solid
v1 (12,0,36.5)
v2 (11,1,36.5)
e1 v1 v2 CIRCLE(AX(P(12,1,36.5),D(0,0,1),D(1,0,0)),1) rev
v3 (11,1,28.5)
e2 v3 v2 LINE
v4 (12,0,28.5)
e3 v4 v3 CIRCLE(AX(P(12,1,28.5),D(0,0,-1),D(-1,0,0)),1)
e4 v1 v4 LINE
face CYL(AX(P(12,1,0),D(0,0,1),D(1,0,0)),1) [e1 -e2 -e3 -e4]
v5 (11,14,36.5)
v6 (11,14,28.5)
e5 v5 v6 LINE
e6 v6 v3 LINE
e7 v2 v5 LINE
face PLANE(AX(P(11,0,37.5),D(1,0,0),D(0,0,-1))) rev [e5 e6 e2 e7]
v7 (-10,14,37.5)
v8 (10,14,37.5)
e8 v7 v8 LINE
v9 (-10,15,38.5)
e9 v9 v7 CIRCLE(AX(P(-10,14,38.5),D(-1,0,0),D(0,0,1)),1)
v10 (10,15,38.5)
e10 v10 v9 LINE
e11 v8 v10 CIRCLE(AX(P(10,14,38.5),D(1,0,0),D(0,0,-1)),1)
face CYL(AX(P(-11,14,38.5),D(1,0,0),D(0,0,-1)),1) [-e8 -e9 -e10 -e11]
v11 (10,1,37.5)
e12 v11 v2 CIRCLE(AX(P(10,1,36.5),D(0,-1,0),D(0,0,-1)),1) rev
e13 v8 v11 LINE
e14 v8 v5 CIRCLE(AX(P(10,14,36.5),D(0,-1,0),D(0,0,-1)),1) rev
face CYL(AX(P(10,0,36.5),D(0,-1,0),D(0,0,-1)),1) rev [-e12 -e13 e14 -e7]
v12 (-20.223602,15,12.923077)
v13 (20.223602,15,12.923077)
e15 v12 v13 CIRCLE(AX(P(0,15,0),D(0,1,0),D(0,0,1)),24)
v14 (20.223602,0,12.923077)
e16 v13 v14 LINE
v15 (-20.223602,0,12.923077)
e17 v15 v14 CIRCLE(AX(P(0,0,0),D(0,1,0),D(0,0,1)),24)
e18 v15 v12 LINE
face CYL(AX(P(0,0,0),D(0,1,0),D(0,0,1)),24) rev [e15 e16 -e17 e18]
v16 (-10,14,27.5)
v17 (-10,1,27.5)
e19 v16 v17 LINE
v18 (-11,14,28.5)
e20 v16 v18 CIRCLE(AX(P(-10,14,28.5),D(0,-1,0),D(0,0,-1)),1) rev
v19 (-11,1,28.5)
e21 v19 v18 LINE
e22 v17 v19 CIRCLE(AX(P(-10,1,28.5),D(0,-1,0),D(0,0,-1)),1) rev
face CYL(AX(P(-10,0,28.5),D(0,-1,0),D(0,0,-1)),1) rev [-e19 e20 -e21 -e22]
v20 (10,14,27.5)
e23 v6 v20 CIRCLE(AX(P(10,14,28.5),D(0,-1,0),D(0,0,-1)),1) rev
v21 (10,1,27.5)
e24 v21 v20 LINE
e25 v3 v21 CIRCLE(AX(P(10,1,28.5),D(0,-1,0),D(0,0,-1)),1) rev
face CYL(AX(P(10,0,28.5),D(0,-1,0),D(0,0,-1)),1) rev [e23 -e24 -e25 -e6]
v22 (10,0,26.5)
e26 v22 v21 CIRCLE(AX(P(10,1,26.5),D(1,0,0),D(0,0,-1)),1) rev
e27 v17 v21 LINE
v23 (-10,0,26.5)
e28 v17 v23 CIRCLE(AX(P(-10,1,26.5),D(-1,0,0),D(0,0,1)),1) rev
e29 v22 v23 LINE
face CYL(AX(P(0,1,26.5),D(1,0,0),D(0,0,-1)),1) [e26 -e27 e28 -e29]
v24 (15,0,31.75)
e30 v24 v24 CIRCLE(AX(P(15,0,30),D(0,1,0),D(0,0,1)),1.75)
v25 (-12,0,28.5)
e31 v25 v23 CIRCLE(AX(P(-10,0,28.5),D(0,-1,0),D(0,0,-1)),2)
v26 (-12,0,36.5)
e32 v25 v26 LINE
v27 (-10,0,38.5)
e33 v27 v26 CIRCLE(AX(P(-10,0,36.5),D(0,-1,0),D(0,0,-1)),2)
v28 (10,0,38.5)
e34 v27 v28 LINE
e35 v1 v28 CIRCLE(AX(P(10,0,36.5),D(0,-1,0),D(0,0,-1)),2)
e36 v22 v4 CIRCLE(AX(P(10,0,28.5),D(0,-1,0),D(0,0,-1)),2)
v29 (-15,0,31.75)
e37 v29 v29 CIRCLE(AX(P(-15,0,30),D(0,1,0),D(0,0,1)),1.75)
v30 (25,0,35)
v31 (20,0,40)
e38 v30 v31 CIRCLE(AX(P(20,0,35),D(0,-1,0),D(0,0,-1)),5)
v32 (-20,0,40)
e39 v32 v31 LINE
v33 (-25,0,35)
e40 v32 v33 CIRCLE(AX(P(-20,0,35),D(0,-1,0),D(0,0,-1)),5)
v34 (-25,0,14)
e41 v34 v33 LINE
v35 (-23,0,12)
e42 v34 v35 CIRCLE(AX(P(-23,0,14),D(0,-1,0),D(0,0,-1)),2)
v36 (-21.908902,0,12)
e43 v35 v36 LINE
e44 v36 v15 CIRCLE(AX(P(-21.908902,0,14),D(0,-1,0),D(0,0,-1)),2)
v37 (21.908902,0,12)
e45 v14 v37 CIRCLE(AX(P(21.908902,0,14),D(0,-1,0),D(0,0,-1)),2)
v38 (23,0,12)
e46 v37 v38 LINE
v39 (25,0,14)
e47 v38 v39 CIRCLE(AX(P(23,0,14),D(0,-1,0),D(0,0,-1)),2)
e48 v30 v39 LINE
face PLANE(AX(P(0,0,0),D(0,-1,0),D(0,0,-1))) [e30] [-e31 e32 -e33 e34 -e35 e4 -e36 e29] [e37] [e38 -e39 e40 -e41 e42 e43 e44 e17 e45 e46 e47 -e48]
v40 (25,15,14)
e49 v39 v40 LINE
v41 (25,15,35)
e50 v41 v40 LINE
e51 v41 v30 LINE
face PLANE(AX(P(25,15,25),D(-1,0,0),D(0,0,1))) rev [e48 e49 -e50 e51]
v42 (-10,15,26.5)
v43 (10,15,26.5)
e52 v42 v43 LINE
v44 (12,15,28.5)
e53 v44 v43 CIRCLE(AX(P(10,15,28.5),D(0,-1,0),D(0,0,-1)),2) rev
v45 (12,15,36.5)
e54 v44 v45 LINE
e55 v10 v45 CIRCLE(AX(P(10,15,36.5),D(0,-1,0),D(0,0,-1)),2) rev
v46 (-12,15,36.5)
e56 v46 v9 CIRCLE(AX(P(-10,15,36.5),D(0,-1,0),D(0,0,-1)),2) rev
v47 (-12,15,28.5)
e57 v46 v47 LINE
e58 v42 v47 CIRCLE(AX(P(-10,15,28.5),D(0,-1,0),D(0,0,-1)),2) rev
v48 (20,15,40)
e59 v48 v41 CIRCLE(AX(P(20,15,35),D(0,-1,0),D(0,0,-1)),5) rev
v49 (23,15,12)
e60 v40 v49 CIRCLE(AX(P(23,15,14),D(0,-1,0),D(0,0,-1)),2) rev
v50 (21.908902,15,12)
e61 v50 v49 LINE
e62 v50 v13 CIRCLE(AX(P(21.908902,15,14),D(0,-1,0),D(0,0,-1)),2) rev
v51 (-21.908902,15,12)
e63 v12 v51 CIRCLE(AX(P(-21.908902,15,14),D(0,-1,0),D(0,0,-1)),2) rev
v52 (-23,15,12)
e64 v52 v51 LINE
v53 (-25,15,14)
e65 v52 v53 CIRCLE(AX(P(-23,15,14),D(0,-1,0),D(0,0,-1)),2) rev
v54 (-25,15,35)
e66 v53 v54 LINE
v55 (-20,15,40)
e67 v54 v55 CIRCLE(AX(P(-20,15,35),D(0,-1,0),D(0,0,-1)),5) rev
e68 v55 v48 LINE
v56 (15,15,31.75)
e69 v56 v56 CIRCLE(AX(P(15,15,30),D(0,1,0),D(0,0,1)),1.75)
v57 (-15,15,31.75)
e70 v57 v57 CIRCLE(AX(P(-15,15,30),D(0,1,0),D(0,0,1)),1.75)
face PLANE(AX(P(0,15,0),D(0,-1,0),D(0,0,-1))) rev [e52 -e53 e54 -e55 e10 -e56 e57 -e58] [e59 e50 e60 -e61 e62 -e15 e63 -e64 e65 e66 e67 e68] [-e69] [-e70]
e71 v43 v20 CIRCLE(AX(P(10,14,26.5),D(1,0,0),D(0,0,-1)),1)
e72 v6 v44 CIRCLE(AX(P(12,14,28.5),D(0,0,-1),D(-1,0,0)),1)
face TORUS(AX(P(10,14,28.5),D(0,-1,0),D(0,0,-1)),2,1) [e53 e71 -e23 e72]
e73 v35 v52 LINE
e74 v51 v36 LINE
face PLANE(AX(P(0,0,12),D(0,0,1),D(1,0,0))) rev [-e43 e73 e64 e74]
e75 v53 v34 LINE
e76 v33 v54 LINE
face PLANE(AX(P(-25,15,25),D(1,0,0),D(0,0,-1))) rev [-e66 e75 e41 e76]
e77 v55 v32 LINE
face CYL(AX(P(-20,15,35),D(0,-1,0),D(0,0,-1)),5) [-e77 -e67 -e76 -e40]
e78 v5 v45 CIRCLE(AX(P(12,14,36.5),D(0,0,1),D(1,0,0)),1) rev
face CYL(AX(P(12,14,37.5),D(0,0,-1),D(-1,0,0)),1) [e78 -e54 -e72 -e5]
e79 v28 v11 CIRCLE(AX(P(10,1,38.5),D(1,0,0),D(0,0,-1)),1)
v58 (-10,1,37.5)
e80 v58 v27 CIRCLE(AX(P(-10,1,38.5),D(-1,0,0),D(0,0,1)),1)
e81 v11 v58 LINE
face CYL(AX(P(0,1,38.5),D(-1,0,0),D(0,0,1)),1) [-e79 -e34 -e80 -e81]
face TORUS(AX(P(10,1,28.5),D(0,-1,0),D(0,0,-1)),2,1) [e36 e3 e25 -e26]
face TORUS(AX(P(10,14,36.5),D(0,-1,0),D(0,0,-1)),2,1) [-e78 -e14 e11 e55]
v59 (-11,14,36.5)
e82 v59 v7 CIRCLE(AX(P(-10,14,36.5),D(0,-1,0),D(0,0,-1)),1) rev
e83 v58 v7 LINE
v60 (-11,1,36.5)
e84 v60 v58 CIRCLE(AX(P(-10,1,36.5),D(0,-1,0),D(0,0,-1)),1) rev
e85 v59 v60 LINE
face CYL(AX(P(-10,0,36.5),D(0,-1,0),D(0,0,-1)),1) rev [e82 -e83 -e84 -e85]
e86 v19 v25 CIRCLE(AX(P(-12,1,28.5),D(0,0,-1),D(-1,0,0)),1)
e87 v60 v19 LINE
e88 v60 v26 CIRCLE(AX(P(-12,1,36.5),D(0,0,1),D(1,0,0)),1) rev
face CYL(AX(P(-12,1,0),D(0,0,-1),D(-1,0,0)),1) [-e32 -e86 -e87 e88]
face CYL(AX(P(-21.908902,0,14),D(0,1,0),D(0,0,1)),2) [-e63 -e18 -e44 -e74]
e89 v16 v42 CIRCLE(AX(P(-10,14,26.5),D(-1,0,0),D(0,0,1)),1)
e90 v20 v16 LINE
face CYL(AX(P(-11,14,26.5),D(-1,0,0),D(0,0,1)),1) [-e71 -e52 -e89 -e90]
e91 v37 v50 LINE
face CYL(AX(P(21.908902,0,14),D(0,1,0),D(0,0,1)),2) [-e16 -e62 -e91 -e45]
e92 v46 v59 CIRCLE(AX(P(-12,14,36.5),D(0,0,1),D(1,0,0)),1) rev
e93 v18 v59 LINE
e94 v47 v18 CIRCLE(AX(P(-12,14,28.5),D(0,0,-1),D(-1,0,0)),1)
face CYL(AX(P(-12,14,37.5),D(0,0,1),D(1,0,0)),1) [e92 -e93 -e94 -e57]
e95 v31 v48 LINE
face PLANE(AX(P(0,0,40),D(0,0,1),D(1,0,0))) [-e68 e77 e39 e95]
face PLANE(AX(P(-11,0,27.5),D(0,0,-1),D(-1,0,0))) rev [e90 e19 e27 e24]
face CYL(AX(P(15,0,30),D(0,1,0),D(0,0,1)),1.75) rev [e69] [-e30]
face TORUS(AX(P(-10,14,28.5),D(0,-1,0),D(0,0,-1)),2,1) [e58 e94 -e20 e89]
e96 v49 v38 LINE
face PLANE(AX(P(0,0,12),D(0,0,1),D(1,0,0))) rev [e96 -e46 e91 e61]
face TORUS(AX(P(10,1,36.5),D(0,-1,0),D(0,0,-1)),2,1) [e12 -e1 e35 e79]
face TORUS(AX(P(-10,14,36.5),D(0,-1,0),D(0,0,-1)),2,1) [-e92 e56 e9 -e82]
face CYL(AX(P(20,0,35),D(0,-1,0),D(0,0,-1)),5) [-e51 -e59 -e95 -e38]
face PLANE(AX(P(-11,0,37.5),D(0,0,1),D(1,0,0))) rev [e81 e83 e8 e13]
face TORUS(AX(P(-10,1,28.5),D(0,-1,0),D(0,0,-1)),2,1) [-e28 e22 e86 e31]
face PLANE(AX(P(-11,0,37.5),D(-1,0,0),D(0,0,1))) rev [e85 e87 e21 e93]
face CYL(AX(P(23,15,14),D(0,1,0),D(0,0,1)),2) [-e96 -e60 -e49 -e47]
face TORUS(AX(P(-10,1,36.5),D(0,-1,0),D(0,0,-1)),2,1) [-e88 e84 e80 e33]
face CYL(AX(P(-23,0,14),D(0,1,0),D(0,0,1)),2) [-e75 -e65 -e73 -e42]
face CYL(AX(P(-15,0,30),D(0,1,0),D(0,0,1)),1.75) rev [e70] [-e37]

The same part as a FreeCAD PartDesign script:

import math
import FreeCAD as App
import Part
import Sketcher

V = App.Vector
Q = App.Units.Quantity


def edges_at(feature, points):
    """Names of the edges that pass closest to the given points."""
    edges = feature.Shape.Edges
    near = lambda p: min(range(len(edges)), key=lambda i: edges[i].distToShape(Part.Vertex(*p))[0])
    return sorted({f"Edge{near(p) + 1}" for p in points})


def add_polygon(sketch, points):
    """Adds a closed chain of lines whose ends are joined by coincident constraints."""
    first, n = sketch.GeometryCount, len(points)
    for a, b in zip(points, points[1:] + points[:1]):
        sketch.addGeometry(Part.LineSegment(App.Vector(*a, 0), App.Vector(*b, 0)), False)
    for i in range(n):
        sketch.addConstraint(Sketcher.Constraint("Coincident", first + i, 2, first + (i + 1) % n, 1))

doc = App.newDocument("Part")
body = doc.addObject("PartDesign::Body", "Body")

# Sketch on XZ plane
sketch1 = doc.addObject("Sketcher::SketchObject", "Sketch")
body.addObject(sketch1)
sketch1.AttachmentSupport = (doc.XZ_Plane, [""])
sketch1.MapMode = "FlatFace"
add_polygon(sketch1, [(-25, -25), (-25, 25), (25, 25), (25, -25)])  # lines 0-3
sketch1.addGeometry(Part.Circle(V(0, 0, 0), V(0, 0, 1), 21), False)  # 4
sketch1.addConstraint([
    Sketcher.Constraint("Vertical", 0),
    Sketcher.Constraint("Horizontal", 1),
    Sketcher.Constraint("Vertical", 2),
    Sketcher.Constraint("Horizontal", 3),
    Sketcher.Constraint("Coincident", 4, 3, -1, 1),
    Sketcher.Constraint("Symmetric", 0, 2, 2, 2, -1, 1),
    Sketcher.Constraint("Equal", 3, 0),
    Sketcher.Constraint("Diameter", 4, Q("42.1 mm")),
    Sketcher.Constraint("DistanceX", 1, 1, 1, 2, Q("50 mm")),
])
pad1 = doc.addObject("PartDesign::Pad", "Pad")
body.addObject(pad1)
pad1.Profile = sketch1
pad1.Length = 15
pad1.Reversed = True

# Sketch on XZ plane
sketch2 = doc.addObject("Sketcher::SketchObject", "Sketch001")
body.addObject(sketch2)
sketch2.AttachmentSupport = (doc.XZ_Plane, [""])
sketch2.MapMode = "FlatFace"
sketch2.AttachmentOffset = App.Placement(V(0, 0, -15), App.Rotation())
add_polygon(sketch2, [(-25, 25), (-25, 55), (25, 55), (25, 25)])  # lines 0-3
sketch2.addGeometry(Part.Circle(V(-15, 47.5, 0), V(0, 0, 1), 1.6), False)  # 4
sketch2.addGeometry(Part.Circle(V(15, 47.5, 0), V(0, 0, 1), 1.6), False)  # 5
sketch2.addConstraint([
    Sketcher.Constraint("Vertical", 0),
    Sketcher.Constraint("Horizontal", 1),
    Sketcher.Constraint("Vertical", 2),
    Sketcher.Constraint("Horizontal", 3),
    Sketcher.Constraint("Equal", 4, 5),
    Sketcher.Constraint("Symmetric", 4, 3, 5, 3, -2),
    Sketcher.Constraint("Diameter", 4, Q("3.2 mm")),
    Sketcher.Constraint("DistanceX", 1, 1, 1, 2, Q("50 mm")),
    Sketcher.Constraint("DistanceY", 0, 1, 0, 2, Q("30 mm")),
    Sketcher.Constraint("DistanceX", 4, 3, -1, 1, Q("15 mm")),
    Sketcher.Constraint("DistanceX", 0, 2, -1, 1, Q("25 mm")),
    Sketcher.Constraint("DistanceY", -1, 1, 0, 2, Q("55 mm")),
    Sketcher.Constraint("DistanceY", -1, 1, 4, 3, Q("47.5 mm")),
])
pad2 = doc.addObject("PartDesign::Pad", "Pad001")
body.addObject(pad2)
pad2.Profile = sketch2
pad2.Length = 15
doc.recompute()

fillet = doc.addObject("PartDesign::Fillet", "Fillet")
body.addObject(fillet)
fillet.Base = (pad2, edges_at(pad2, [
    (25, 7.5, 55),
    (-25, 7.5, 55),
    (-25, 7.5, -25),
    (25, 7.5, -25),
]))
fillet.Radius = 3

# Sketch on XZ plane
sketch3 = doc.addObject("Sketcher::SketchObject", "Sketch002")
body.addObject(sketch3)
sketch3.AttachmentSupport = (doc.XZ_Plane, [""])
sketch3.MapMode = "FlatFace"
sketch3.AttachmentOffset = App.Placement(V(0, 0, -15), App.Rotation())
sketch3.addGeometry([
    Part.Circle(V(-15, 30, 0), V(0, 0, 1), 1.8),
    Part.Circle(V(15, 30, 0), V(0, 0, 1), 1.8),
], False)
sketch3.addConstraint([
    Sketcher.Constraint("Equal", 0, 1),
    Sketcher.Constraint("Symmetric", 0, 3, 1, 3, -2),
    Sketcher.Constraint("Diameter", 0, Q("3.5 mm")),
    Sketcher.Constraint("DistanceX", 0, 3, -1, 1, Q("15 mm")),
    Sketcher.Constraint("DistanceY", -1, 1, 0, 3, Q("30 mm")),
])
pocket1 = doc.addObject("PartDesign::Pocket", "Pocket")
body.addObject(pocket1)
pocket1.Profile = sketch3
pocket1.Type = "ThroughAll"
pocket1.Reversed = True

# Sketch on XZ plane
sketch4 = doc.addObject("Sketcher::SketchObject", "Sketch003")
body.addObject(sketch4)
sketch4.AttachmentSupport = (doc.XZ_Plane, [""])
sketch4.MapMode = "FlatFace"
sketch4.AttachmentOffset = App.Placement(V(0, 0, -15), App.Rotation())
sketch4.addGeometry([
    Part.LineSegment(V(25, 40, 0), V(-25, 40, 0)),  # 0
    Part.LineSegment(V(-25, 40, 0), V(-25, 52, 0)),  # 1
    Part.ArcOfCircle(Part.Circle(V(-22, 52, 0), V(0, 0, 1), 3), math.radians(90), math.radians(180)),  # 2
    Part.LineSegment(V(-22, 55, 0), V(22, 55, 0)),  # 3
    Part.ArcOfCircle(Part.Circle(V(22, 52, 0), V(0, 0, 1), 3), math.radians(0), math.radians(90)),  # 4
    Part.LineSegment(V(25, 52, 0), V(25, 40, 0)),  # 5
    Part.Circle(V(-15, 47.5, 0), V(0, 0, 1), 1.6),  # 6
    Part.Circle(V(15, 47.5, 0), V(0, 0, 1), 1.6),  # 7
    Part.LineSegment(V(-25, -22, 0), V(-25, 12, 0)),  # 8
    Part.LineSegment(V(-25, 12, 0), V(-20.8, 12, 0)),  # 9
    Part.ArcOfCircle(Part.Circle(V(0, 0, 0), V(0, 0, 1), 24), math.radians(30), math.radians(150)),  # 10
    Part.LineSegment(V(20.8, 12, 0), V(25, 12, 0)),  # 11
    Part.LineSegment(V(25, 12, 0), V(25, -22, 0)),  # 12
    Part.ArcOfCircle(Part.Circle(V(22, -22, 0), V(0, 0, 1), 3), math.radians(-90), math.radians(0)),  # 13
    Part.LineSegment(V(22, -25, 0), V(-22, -25, 0)),  # 14
    Part.ArcOfCircle(Part.Circle(V(-22, -22, 0), V(0, 0, 1), 3), math.radians(180), math.radians(270)),  # 15
    Part.ArcOfCircle(Part.Circle(V(0, 0, 0), V(0, 0, 1), 21.1), math.radians(145), math.radians(360)),  # 16
    Part.ArcOfCircle(Part.Circle(V(0, 0, 0), V(0, 0, 1), 21.1), math.radians(0), math.radians(35)),  # 17
    Part.ArcOfCircle(Part.Circle(V(0, 0, 0), V(0, 0, 1), 21.1), math.radians(35), math.radians(145)),  # 18
], False)
sketch4.addConstraint([
    Sketcher.Constraint("Coincident", 0, 2, 1, 1),
    Sketcher.Constraint("Tangent", 1, 2, 2, 2),
    Sketcher.Constraint("Tangent", 2, 1, 3, 1),
    Sketcher.Constraint("Tangent", 3, 2, 4, 2),
    Sketcher.Constraint("Tangent", 4, 1, 5, 1),
    Sketcher.Constraint("Coincident", 5, 2, 0, 1),
    Sketcher.Constraint("Coincident", 8, 2, 9, 1),
    Sketcher.Constraint("Coincident", 9, 2, 10, 2),
    Sketcher.Constraint("Coincident", 10, 1, 11, 1),
    Sketcher.Constraint("Coincident", 11, 2, 12, 1),
    Sketcher.Constraint("Tangent", 12, 2, 13, 2),
    Sketcher.Constraint("Tangent", 13, 1, 14, 1),
    Sketcher.Constraint("Tangent", 14, 2, 15, 2),
    Sketcher.Constraint("Tangent", 15, 1, 8, 1),
    Sketcher.Constraint("Tangent", 16, 2, 17, 1),
    Sketcher.Constraint("Tangent", 17, 2, 18, 1),
    Sketcher.Constraint("Tangent", 18, 2, 16, 1),
    Sketcher.Constraint("Horizontal", 0),
    Sketcher.Constraint("Vertical", 1),
    Sketcher.Constraint("Horizontal", 3),
    Sketcher.Constraint("Vertical", 5),
    Sketcher.Constraint("Vertical", 8),
    Sketcher.Constraint("Horizontal", 9),
    Sketcher.Constraint("Horizontal", 11),
    Sketcher.Constraint("Vertical", 12),
    Sketcher.Constraint("Horizontal", 14),
    Sketcher.Constraint("Coincident", 10, 3, -1, 1),
    Sketcher.Constraint("Coincident", 16, 3, -1, 1),
    Sketcher.Constraint("Equal", 2, 4),
    Sketcher.Constraint("Equal", 6, 7),
    Sketcher.Constraint("Equal", 4, 13),
    Sketcher.Constraint("Equal", 13, 15),
    Sketcher.Constraint("Symmetric", 6, 3, 7, 3, -2),
    Sketcher.Constraint("Symmetric", 8, 2, 11, 2, -2),
    Sketcher.Constraint("PointOnObject", 16, 2, -1),
    Sketcher.Constraint("Horizontal", 11, 2, 17, 2),
    Sketcher.Constraint("Horizontal", 17, 2, 18, 2),
    Sketcher.Constraint("Vertical", 4, 3, 13, 3),
    Sketcher.Constraint("Vertical", 2, 3, 15, 3),
    Sketcher.Constraint("Radius", 2, Q("3 mm")),
    Sketcher.Constraint("Radius", 10, Q("24 mm")),
    Sketcher.Constraint("Diameter", 6, Q("3.2 mm")),
    Sketcher.Constraint("DistanceX", 0, 2, 0, 1, Q("50 mm")),
    Sketcher.Constraint("DistanceY", 1, 1, 1, 2, Q("12 mm")),
    Sketcher.Constraint("DistanceY", 8, 1, 8, 2, Q("34 mm")),
    Sketcher.Constraint("Radius", 16, Q("21.05 mm")),
    Sketcher.Constraint("DistanceY", -1, 1, 2, 3, Q("52 mm")),
    Sketcher.Constraint("DistanceX", 6, 3, -1, 1, Q("15 mm")),
    Sketcher.Constraint("DistanceY", 13, 3, -1, 1, Q("22 mm")),
    Sketcher.Constraint("DistanceY", -1, 1, 6, 3, Q("47.5 mm")),
])
pocket2 = doc.addObject("PartDesign::Pocket", "Pocket001")
body.addObject(pocket2)
pocket2.Profile = sketch4
pocket2.Length = 63.249498
pocket2.Reversed = True
doc.recompute()

fillet2 = doc.addObject("PartDesign::Fillet", "Fillet001")
body.addObject(fillet2)
fillet2.Base = (pocket2, edges_at(pocket2, [
    (20.785, 7.5, 12),
    (-20.785, 7.5, 12),
    (-25, 7.5, 12),
    (25, 7.5, 12),
]))
fillet2.Radius = 2
doc.recompute()

fillet3 = doc.addObject("PartDesign::Fillet", "Fillet002")
body.addObject(fillet3)
fillet3.Base = (fillet2, edges_at(fillet2, [(-25, 7.5, 40), (25, 7.5, 40)]))
fillet3.Radius = 5

# Sketch on XZ plane
sketch5 = doc.addObject("Sketcher::SketchObject", "Sketch004")
body.addObject(sketch5)
sketch5.AttachmentSupport = (doc.XZ_Plane, [""])
sketch5.MapMode = "FlatFace"
sketch5.AttachmentOffset = App.Placement(V(0, 0, -15), App.Rotation())
add_polygon(sketch5, [(-11, 28), (-11, 38), (11, 38), (11, 28)])  # lines 0-3
sketch5.addConstraint([
    Sketcher.Constraint("Vertical", 0),
    Sketcher.Constraint("Horizontal", 1),
    Sketcher.Constraint("Vertical", 2),
    Sketcher.Constraint("Horizontal", 3),
    Sketcher.Constraint("DistanceX", 1, 1, 1, 2, Q("22 mm")),
    Sketcher.Constraint("DistanceY", 0, 1, 0, 2, Q("10 mm")),
    Sketcher.Constraint("DistanceX", 0, 2, -1, 1, Q("11 mm")),
    Sketcher.Constraint("DistanceY", -1, 1, 0, 2, Q("37.5 mm")),
])
pocket3 = doc.addObject("PartDesign::Pocket", "Pocket002")
body.addObject(pocket3)
pocket3.Profile = sketch5
pocket3.Type = "ThroughAll"
pocket3.Reversed = True
doc.recompute()

fillet4 = doc.addObject("PartDesign::Fillet", "Fillet003")
body.addObject(fillet4)
fillet4.Base = (pocket3, edges_at(pocket3, [
    (11, 0, 32.5),
    (11, 7.5, 27.5),
    (0, 0, 37.5),
    (11, 7.5, 37.5),
    (-11, 0, 32.5),
    (-11, 7.5, 37.5),
    (0, 0, 27.5),
    (-11, 7.5, 27.5),
    (11, 15, 32.5),
    (0, 15, 27.5),
    (-11, 15, 32.5),
    (0, 15, 37.5),
]))
fillet4.Radius = 1

doc.recompute()
